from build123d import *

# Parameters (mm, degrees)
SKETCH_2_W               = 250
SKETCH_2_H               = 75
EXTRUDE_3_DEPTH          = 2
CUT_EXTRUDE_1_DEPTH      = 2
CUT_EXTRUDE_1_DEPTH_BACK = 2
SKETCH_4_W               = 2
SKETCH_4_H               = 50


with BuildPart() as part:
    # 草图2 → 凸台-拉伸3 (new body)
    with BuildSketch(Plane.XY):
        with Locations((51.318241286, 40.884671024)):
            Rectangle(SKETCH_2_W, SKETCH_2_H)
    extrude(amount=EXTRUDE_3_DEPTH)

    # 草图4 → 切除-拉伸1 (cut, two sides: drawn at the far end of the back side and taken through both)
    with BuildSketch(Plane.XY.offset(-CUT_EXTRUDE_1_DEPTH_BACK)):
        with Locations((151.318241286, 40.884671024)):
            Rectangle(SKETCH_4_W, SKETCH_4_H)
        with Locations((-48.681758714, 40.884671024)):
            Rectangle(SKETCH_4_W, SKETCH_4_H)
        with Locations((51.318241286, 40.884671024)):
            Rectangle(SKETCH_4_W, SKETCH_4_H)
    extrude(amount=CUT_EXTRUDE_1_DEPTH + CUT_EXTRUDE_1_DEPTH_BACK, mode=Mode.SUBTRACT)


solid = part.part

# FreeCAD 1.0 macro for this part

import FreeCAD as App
import Part
import Sketcher
from FreeCAD import Vector
Q = App.Units.Quantity

doc = App.newDocument("Part")
body = doc.addObject("PartDesign::Body", "Body")

# Sketch on XY plane
sketch1 = body.newObject("Sketcher::SketchObject", "Sketch")
sketch1.AttachmentSupport = (doc.getObject("XY_Plane"), [""])
sketch1.MapMode = "FlatFace"
sketch1.addGeometry(Part.LineSegment(Vector(-74, 78, 0), Vector(-74, 3, 0)), False)
sketch1.addGeometry(Part.LineSegment(Vector(-74, 3, 0), Vector(176, 3, 0)), False)
sketch1.addGeometry(Part.LineSegment(Vector(176, 3, 0), Vector(176, 78, 0)), False)
sketch1.addGeometry(Part.LineSegment(Vector(176, 78, 0), Vector(-74, 78, 0)), False)
sketch1.addConstraint(Sketcher.Constraint("Coincident", 0, 2, 1, 1))
sketch1.addConstraint(Sketcher.Constraint("Coincident", 1, 2, 2, 1))
sketch1.addConstraint(Sketcher.Constraint("Coincident", 2, 2, 3, 1))
sketch1.addConstraint(Sketcher.Constraint("Coincident", 3, 2, 0, 1))
sketch1.addConstraint(Sketcher.Constraint("Vertical", 0))
sketch1.addConstraint(Sketcher.Constraint("Horizontal", 1))
sketch1.addConstraint(Sketcher.Constraint("Vertical", 2))
sketch1.addConstraint(Sketcher.Constraint("Horizontal", 3))
sketch1.addConstraint(Sketcher.Constraint("DistanceX", 1, 1, 1, 2, Q("250 mm")))
sketch1.addConstraint(Sketcher.Constraint("DistanceY", 0, 2, 0, 1, Q("75 mm")))
sketch1.addConstraint(Sketcher.Constraint("DistanceX", 0, 2, -1, 1, Q("73.681759 mm")))
sketch1.addConstraint(Sketcher.Constraint("DistanceY", -1, 1, 0, 2, Q("3.384671 mm")))
pad1 = body.newObject("PartDesign::Pad", "Pad")
pad1.Profile = sketch1
pad1.Length = 2

# Sketch on XY plane
sketch2 = body.newObject("Sketcher::SketchObject", "Sketch001")
sketch2.AttachmentSupport = (doc.getObject("XY_Plane"), [""])
sketch2.MapMode = "FlatFace"
sketch2.addGeometry(Part.LineSegment(Vector(150.3, 65.9, 0), Vector(150.3, 15.9, 0)), False)
sketch2.addGeometry(Part.LineSegment(Vector(150.3, 15.9, 0), Vector(152.3, 15.9, 0)), False)
sketch2.addGeometry(Part.LineSegment(Vector(152.3, 15.9, 0), Vector(152.3, 65.9, 0)), False)
sketch2.addGeometry(Part.LineSegment(Vector(152.3, 65.9, 0), Vector(150.3, 65.9, 0)), False)
sketch2.addGeometry(Part.LineSegment(Vector(-49.7, 65.9, 0), Vector(-49.7, 15.9, 0)), False)
sketch2.addGeometry(Part.LineSegment(Vector(-49.7, 15.9, 0), Vector(-47.7, 15.9, 0)), False)
sketch2.addGeometry(Part.LineSegment(Vector(-47.7, 15.9, 0), Vector(-47.7, 65.9, 0)), False)
sketch2.addGeometry(Part.LineSegment(Vector(-47.7, 65.9, 0), Vector(-49.7, 65.9, 0)), False)
sketch2.addGeometry(Part.LineSegment(Vector(50.3, 65.9, 0), Vector(50.3, 15.9, 0)), False)
sketch2.addGeometry(Part.LineSegment(Vector(50.3, 15.9, 0), Vector(52.3, 15.9, 0)), False)
sketch2.addGeometry(Part.LineSegment(Vector(52.3, 15.9, 0), Vector(52.3, 65.9, 0)), False)
sketch2.addGeometry(Part.LineSegment(Vector(52.3, 65.9, 0), Vector(50.3, 65.9, 0)), False)
sketch2.addConstraint(Sketcher.Constraint("Coincident", 0, 2, 1, 1))
sketch2.addConstraint(Sketcher.Constraint("Coincident", 1, 2, 2, 1))
sketch2.addConstraint(Sketcher.Constraint("Coincident", 2, 2, 3, 1))
sketch2.addConstraint(Sketcher.Constraint("Coincident", 3, 2, 0, 1))
sketch2.addConstraint(Sketcher.Constraint("Coincident", 4, 2, 5, 1))
sketch2.addConstraint(Sketcher.Constraint("Coincident", 5, 2, 6, 1))
sketch2.addConstraint(Sketcher.Constraint("Coincident", 6, 2, 7, 1))
sketch2.addConstraint(Sketcher.Constraint("Coincident", 7, 2, 4, 1))
sketch2.addConstraint(Sketcher.Constraint("Coincident", 8, 2, 9, 1))
sketch2.addConstraint(Sketcher.Constraint("Coincident", 9, 2, 10, 1))
sketch2.addConstraint(Sketcher.Constraint("Coincident", 10, 2, 11, 1))
sketch2.addConstraint(Sketcher.Constraint("Coincident", 11, 2, 8, 1))
sketch2.addConstraint(Sketcher.Constraint("Vertical", 0))
sketch2.addConstraint(Sketcher.Constraint("Horizontal", 1))
sketch2.addConstraint(Sketcher.Constraint("Vertical", 2))
sketch2.addConstraint(Sketcher.Constraint("Horizontal", 3))
sketch2.addConstraint(Sketcher.Constraint("Vertical", 4))
sketch2.addConstraint(Sketcher.Constraint("Horizontal", 5))
sketch2.addConstraint(Sketcher.Constraint("Vertical", 6))
sketch2.addConstraint(Sketcher.Constraint("Horizontal", 7))
sketch2.addConstraint(Sketcher.Constraint("Vertical", 8))
sketch2.addConstraint(Sketcher.Constraint("Horizontal", 9))
sketch2.addConstraint(Sketcher.Constraint("Vertical", 10))
sketch2.addConstraint(Sketcher.Constraint("Horizontal", 11))
sketch2.addConstraint(Sketcher.Constraint("Horizontal", 1, 2, 4, 2))
sketch2.addConstraint(Sketcher.Constraint("Horizontal", 3, 2, 6, 2))
sketch2.addConstraint(Sketcher.Constraint("Horizontal", 5, 2, 8, 2))
sketch2.addConstraint(Sketcher.Constraint("Horizontal", 7, 2, 10, 2))
sketch2.addConstraint(Sketcher.Constraint("Equal", 3, 5))
sketch2.addConstraint(Sketcher.Constraint("Equal", 7, 9))
sketch2.addConstraint(Sketcher.Constraint("DistanceX", 1, 1, 1, 2, Q("2 mm")))
sketch2.addConstraint(Sketcher.Constraint("DistanceY", 0, 2, 0, 1, Q("50 mm")))
sketch2.addConstraint(Sketcher.Constraint("DistanceX", 4, 2, 0, 2, Q("200 mm")))
sketch2.addConstraint(Sketcher.Constraint("DistanceX", 5, 2, 8, 2, Q("98 mm")))
sketch2.addConstraint(Sketcher.Constraint("DistanceX", -1, 1, 0, 2, Q("150.318241 mm")))
sketch2.addConstraint(Sketcher.Constraint("DistanceY", -1, 1, 0, 2, Q("15.884671 mm")))
pocket1 = body.newObject("PartDesign::Pocket", "Pocket")
pocket1.Profile = sketch2
pocket1.Type = "ThroughAll"
pocket1.Midplane = True

doc.recompute()
